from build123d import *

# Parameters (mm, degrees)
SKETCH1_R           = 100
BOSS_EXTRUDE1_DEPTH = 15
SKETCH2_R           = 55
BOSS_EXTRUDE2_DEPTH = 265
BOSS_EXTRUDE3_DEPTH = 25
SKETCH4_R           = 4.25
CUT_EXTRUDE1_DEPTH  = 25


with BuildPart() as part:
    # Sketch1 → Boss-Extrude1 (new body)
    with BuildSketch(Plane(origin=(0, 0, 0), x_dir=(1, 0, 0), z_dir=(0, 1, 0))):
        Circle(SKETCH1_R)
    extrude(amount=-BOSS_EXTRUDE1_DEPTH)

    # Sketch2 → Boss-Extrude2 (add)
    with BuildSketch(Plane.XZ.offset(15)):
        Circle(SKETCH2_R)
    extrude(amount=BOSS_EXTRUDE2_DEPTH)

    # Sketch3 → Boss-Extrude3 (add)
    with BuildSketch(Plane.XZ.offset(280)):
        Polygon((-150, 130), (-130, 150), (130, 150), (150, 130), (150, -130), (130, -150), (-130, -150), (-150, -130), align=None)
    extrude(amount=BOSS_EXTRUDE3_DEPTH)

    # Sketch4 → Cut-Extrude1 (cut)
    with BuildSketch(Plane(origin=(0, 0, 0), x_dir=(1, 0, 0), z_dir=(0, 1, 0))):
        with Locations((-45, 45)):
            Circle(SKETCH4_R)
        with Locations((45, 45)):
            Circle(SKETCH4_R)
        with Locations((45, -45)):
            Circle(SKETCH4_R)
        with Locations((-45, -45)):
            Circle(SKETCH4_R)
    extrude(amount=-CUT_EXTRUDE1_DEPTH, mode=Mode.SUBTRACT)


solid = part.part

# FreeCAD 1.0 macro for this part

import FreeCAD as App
import Part
import Sketcher
from FreeCAD import Vector
Q = App.Units.Quantity

doc = App.newDocument("Part")
body = doc.addObject("PartDesign::Body", "Body")

# Sketch on XZ plane
sketch1 = body.newObject("Sketcher::SketchObject", "Sketch")
sketch1.AttachmentSupport = (doc.getObject("XZ_Plane"), [""])
sketch1.MapMode = "FlatFace"
sketch1.addGeometry(Part.Circle(Vector(0, 0, 0), Vector(0, 0, 1), 100), False)
sketch1.addConstraint([
    Sketcher.Constraint("Coincident", 0, 3, -1, 1),
    Sketcher.Constraint("Diameter", 0, Q("200 mm")),
])
pad1 = body.newObject("PartDesign::Pad", "Pad")
pad1.Profile = sketch1
pad1.Length = 15

# Sketch on XZ plane
sketch2 = body.newObject("Sketcher::SketchObject", "Sketch001")
sketch2.AttachmentSupport = (doc.getObject("XZ_Plane"), [""])
sketch2.MapMode = "FlatFace"
sketch2.AttachmentOffset = App.Placement(Vector(0, 0, 15), App.Rotation())
sketch2.addGeometry(Part.Circle(Vector(0, 0, 0), Vector(0, 0, 1), 55), False)
sketch2.addConstraint([
    Sketcher.Constraint("Coincident", 0, 3, -1, 1),
    Sketcher.Constraint("Diameter", 0, Q("110 mm")),
])
pad2 = body.newObject("PartDesign::Pad", "Pad001")
pad2.Profile = sketch2
pad2.Length = 265

# Sketch on XZ plane
sketch3 = body.newObject("Sketcher::SketchObject", "Sketch002")
sketch3.AttachmentSupport = (doc.getObject("XZ_Plane"), [""])
sketch3.MapMode = "FlatFace"
sketch3.AttachmentOffset = App.Placement(Vector(0, 0, 280), App.Rotation())
sketch3.addGeometry([
    Part.LineSegment(Vector(-130, 150, 0), Vector(-150, 130, 0)),  # 0
    Part.LineSegment(Vector(-150, 130, 0), Vector(-150, -130, 0)),  # 1
    Part.LineSegment(Vector(-150, -130, 0), Vector(-130, -150, 0)),  # 2
    Part.LineSegment(Vector(-130, -150, 0), Vector(130, -150, 0)),  # 3
    Part.LineSegment(Vector(130, -150, 0), Vector(150, -130, 0)),  # 4
    Part.LineSegment(Vector(150, -130, 0), Vector(150, 130, 0)),  # 5
    Part.LineSegment(Vector(150, 130, 0), Vector(130, 150, 0)),  # 6
    Part.LineSegment(Vector(130, 150, 0), Vector(-130, 150, 0)),  # 7
], False)
sketch3.addConstraint([
    Sketcher.Constraint("Coincident", 0, 2, 1, 1),
    Sketcher.Constraint("Coincident", 1, 2, 2, 1),
    Sketcher.Constraint("Coincident", 2, 2, 3, 1),
    Sketcher.Constraint("Coincident", 3, 2, 4, 1),
    Sketcher.Constraint("Coincident", 4, 2, 5, 1),
    Sketcher.Constraint("Coincident", 5, 2, 6, 1),
    Sketcher.Constraint("Coincident", 6, 2, 7, 1),
    Sketcher.Constraint("Coincident", 7, 2, 0, 1),
    Sketcher.Constraint("Vertical", 1),
    Sketcher.Constraint("Horizontal", 3),
    Sketcher.Constraint("Vertical", 5),
    Sketcher.Constraint("Horizontal", 7),
    Sketcher.Constraint("Symmetric", 0, 2, 4, 2, -1, 1),
    Sketcher.Constraint("Symmetric", 2, 2, 6, 2, -1, 1),
    Sketcher.Constraint("Perpendicular", 0, 2),
    Sketcher.Constraint("Perpendicular", 2, 4),
    Sketcher.Constraint("Perpendicular", 4, 6),
    Sketcher.Constraint("Horizontal", 1, 2, 4, 2),
    Sketcher.Constraint("Vertical", 3, 2, 6, 2),
    Sketcher.Constraint("Equal", 7, 1),
    Sketcher.Constraint("DistanceX", 3, 1, 3, 2, Q("260 mm")),
    Sketcher.Constraint("DistanceX", 0, 2, -1, 1, Q("150 mm")),
])
pad3 = body.newObject("PartDesign::Pad", "Pad002")
pad3.Profile = sketch3
pad3.Length = 25

# Sketch on XZ plane
sketch4 = body.newObject("Sketcher::SketchObject", "Sketch003")
sketch4.AttachmentSupport = (doc.getObject("XZ_Plane"), [""])
sketch4.MapMode = "FlatFace"
sketch4.addGeometry([
    Part.Circle(Vector(-45, -45, 0), Vector(0, 0, 1), 4.2),
    Part.Circle(Vector(45, -45, 0), Vector(0, 0, 1), 4.2),
    Part.Circle(Vector(45, 45, 0), Vector(0, 0, 1), 4.2),
    Part.Circle(Vector(-45, 45, 0), Vector(0, 0, 1), 4.2),
], False)
sketch4.addConstraint([
    Sketcher.Constraint("Equal", 0, 1),
    Sketcher.Constraint("Equal", 1, 2),
    Sketcher.Constraint("Equal", 2, 3),
    Sketcher.Constraint("Symmetric", 0, 3, 2, 3, -1, 1),
    Sketcher.Constraint("Symmetric", 1, 3, 3, 3, -1, 1),
    Sketcher.Constraint("Symmetric", 0, 3, 1, 3, -2),
    Sketcher.Constraint("Diameter", 0, Q("8.5 mm")),
    Sketcher.Constraint("DistanceX", 0, 3, -1, 1, Q("45 mm")),
    Sketcher.Constraint("DistanceY", 0, 3, -1, 1, Q("45 mm")),
])
pocket1 = body.newObject("PartDesign::Pocket", "Pocket")
pocket1.Profile = sketch4
pocket1.Length = 25
pocket1.Reversed = True

doc.recompute()
